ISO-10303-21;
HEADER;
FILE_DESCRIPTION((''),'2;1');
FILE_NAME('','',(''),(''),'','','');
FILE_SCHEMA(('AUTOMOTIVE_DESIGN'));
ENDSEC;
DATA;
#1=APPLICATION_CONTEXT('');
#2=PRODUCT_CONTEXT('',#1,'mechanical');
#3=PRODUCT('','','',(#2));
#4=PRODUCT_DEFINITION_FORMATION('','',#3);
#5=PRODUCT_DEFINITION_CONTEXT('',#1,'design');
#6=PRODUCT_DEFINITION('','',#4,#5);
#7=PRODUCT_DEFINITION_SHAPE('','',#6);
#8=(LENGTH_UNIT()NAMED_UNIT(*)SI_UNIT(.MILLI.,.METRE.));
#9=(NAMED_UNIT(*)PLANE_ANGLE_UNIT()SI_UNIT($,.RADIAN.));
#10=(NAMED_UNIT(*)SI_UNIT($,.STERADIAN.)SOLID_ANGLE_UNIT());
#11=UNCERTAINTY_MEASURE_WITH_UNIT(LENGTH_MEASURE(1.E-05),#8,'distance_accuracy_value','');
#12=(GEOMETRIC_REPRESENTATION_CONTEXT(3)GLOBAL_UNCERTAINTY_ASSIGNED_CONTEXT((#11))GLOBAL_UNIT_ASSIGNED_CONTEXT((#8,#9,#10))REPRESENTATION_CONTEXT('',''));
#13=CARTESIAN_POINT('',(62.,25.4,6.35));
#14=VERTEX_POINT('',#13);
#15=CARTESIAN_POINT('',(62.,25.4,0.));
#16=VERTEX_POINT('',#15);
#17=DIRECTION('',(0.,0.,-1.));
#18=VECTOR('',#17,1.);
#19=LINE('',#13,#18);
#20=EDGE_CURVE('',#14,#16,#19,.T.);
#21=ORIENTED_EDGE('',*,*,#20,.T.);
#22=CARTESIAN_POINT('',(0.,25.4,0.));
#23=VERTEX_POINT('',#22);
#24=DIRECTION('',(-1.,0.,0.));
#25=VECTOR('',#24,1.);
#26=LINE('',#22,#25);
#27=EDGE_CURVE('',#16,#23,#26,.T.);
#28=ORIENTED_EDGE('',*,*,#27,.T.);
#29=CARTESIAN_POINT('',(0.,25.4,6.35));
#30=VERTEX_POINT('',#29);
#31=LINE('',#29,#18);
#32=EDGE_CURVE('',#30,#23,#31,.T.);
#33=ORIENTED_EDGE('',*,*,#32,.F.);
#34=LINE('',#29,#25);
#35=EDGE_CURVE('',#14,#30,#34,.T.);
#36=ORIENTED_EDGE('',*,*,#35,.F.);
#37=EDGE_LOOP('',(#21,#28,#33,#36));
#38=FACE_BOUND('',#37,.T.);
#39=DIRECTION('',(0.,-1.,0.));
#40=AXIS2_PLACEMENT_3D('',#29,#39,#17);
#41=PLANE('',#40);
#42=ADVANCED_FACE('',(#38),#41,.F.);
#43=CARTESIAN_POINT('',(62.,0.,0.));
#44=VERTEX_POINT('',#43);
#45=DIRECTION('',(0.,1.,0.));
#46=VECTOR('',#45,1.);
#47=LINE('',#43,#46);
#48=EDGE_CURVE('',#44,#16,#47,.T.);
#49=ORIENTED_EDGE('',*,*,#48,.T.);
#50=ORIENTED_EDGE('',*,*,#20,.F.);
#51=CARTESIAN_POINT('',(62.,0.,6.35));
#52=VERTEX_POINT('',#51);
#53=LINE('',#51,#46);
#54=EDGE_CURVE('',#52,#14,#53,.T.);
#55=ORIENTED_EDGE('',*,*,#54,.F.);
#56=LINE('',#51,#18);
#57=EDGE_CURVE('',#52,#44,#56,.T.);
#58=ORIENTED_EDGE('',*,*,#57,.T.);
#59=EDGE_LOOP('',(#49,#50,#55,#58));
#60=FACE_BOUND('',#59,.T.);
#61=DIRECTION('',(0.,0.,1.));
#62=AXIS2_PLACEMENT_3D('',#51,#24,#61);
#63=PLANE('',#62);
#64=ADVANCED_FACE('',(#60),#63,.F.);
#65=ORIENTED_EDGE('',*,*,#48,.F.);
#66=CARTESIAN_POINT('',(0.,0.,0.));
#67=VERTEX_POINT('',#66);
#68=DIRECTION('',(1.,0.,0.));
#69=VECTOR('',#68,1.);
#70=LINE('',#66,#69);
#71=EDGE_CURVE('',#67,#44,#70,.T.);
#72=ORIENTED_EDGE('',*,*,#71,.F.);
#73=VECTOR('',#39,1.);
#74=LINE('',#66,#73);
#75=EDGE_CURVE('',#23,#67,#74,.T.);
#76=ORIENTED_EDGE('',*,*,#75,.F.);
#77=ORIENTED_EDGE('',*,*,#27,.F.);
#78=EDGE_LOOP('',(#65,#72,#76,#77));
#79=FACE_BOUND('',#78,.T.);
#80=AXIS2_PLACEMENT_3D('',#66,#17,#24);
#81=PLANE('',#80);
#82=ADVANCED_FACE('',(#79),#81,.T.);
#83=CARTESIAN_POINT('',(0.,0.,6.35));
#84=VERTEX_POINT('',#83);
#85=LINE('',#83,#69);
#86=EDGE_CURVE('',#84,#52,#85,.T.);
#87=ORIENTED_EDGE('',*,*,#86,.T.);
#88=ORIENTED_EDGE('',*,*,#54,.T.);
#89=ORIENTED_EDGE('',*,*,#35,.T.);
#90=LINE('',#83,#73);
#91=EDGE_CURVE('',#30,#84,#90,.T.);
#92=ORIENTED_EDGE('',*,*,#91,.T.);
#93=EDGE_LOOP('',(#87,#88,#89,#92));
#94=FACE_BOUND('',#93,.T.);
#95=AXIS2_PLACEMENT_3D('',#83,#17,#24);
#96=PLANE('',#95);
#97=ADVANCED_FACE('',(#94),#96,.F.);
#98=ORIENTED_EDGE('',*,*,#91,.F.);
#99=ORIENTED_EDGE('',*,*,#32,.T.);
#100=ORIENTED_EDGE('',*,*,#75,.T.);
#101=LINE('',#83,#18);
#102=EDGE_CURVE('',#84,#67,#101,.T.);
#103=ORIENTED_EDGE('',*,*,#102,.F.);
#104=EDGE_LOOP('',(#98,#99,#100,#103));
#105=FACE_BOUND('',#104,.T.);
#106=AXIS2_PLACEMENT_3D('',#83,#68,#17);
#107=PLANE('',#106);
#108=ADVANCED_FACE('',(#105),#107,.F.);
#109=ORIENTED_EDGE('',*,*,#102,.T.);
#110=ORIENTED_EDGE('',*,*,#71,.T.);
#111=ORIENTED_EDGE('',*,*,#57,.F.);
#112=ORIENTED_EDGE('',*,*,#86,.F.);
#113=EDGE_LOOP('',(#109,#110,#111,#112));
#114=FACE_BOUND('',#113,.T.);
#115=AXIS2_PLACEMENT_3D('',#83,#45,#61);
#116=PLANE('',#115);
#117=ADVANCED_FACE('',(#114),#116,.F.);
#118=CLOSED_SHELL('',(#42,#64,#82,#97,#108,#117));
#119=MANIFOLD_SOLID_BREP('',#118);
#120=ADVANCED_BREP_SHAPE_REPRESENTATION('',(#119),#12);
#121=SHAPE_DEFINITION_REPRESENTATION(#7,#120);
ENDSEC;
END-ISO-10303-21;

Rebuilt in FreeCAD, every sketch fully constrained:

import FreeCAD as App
import Part
import Sketcher
from FreeCAD import Vector
Q = App.Units.Quantity

doc = App.newDocument("Part")
body = doc.addObject("PartDesign::Body", "Body")

sketch1 = doc.addObject("Sketcher::SketchObject", "Sketch")
body.addObject(sketch1)
sketch1.AttachmentSupport = (doc.XY_Plane, [""])
sketch1.MapMode = "FlatFace"
sketch1.addGeometry(Part.LineSegment(Vector(0, 25, 0), Vector(0, 0, 0)), False)
sketch1.addGeometry(Part.LineSegment(Vector(0, 0, 0), Vector(62, 0, 0)), False)
sketch1.addGeometry(Part.LineSegment(Vector(62, 0, 0), Vector(62, 25, 0)), False)
sketch1.addGeometry(Part.LineSegment(Vector(62, 25, 0), Vector(0, 25, 0)), False)
sketch1.addConstraint(Sketcher.Constraint("Coincident", 0, 2, 1, 1))
sketch1.addConstraint(Sketcher.Constraint("Coincident", 1, 2, 2, 1))
sketch1.addConstraint(Sketcher.Constraint("Coincident", 2, 2, 3, 1))
sketch1.addConstraint(Sketcher.Constraint("Coincident", 3, 2, 0, 1))
sketch1.addConstraint(Sketcher.Constraint("Vertical", 0))
sketch1.addConstraint(Sketcher.Constraint("Horizontal", 1))
sketch1.addConstraint(Sketcher.Constraint("Vertical", 2))
sketch1.addConstraint(Sketcher.Constraint("Horizontal", 3))
sketch1.addConstraint(Sketcher.Constraint("Coincident", 0, 2, -1, 1))
sketch1.addConstraint(Sketcher.Constraint("DistanceY", 0, 2, 0, 1, Q("1 in")))
sketch1.addConstraint(Sketcher.Constraint("DistanceX", 1, 1, 1, 2, 62.0))
pad1 = doc.addObject("PartDesign::Pad", "Pad")
body.addObject(pad1)
pad1.Profile = sketch1
pad1.Length = Q("0.25 in")

doc.recompute()
